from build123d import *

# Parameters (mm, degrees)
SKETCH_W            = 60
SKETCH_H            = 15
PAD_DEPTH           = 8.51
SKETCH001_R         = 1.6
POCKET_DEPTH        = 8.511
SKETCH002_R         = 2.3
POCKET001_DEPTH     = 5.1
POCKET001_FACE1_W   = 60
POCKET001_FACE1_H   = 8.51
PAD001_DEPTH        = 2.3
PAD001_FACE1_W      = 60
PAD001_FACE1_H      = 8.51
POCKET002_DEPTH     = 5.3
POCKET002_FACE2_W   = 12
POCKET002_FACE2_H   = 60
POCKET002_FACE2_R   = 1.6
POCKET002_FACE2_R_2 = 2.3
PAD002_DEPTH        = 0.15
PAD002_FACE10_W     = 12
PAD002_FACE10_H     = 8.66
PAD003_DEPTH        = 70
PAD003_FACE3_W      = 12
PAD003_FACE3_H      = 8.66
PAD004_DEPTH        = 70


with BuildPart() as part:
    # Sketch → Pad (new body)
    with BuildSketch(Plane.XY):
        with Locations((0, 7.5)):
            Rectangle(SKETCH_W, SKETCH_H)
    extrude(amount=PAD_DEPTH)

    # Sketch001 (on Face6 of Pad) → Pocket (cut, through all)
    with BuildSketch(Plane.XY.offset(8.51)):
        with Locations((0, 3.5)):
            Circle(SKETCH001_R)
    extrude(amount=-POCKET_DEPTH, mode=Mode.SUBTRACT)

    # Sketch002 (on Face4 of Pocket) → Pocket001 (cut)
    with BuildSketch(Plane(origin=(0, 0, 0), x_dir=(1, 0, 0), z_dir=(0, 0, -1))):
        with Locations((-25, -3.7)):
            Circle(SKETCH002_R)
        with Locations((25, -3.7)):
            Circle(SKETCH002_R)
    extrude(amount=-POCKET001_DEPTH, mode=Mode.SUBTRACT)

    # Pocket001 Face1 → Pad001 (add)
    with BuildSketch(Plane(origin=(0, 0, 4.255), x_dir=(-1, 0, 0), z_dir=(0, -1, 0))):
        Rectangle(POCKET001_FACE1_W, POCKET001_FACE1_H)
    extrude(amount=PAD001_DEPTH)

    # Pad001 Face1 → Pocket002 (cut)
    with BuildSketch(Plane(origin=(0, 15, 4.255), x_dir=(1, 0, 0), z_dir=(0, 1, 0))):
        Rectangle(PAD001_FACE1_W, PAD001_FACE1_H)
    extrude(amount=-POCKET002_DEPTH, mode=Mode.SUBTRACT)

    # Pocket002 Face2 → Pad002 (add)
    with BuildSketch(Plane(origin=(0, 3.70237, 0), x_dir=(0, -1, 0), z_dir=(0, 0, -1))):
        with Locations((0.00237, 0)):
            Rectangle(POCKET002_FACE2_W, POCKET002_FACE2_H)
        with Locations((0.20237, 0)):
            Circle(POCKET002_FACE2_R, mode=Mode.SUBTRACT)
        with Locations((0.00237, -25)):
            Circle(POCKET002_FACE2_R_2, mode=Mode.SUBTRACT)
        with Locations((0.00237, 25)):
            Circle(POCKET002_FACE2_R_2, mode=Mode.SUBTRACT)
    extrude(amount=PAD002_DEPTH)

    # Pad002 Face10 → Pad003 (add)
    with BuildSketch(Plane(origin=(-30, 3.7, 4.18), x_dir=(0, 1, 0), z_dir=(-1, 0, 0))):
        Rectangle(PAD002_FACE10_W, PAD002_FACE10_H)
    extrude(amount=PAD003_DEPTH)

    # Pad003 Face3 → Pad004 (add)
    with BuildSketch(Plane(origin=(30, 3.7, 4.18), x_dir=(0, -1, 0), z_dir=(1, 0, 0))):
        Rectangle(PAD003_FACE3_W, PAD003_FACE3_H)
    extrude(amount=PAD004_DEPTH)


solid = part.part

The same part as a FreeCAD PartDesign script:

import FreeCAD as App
import Part
import Sketcher
Q = App.Units.Quantity


def add_polygon(sketch, points):
    """Adds a closed chain of lines whose ends are joined by coincident constraints."""
    first, n = sketch.GeometryCount, len(points)
    for a, b in zip(points, points[1:] + points[:1]):
        sketch.addGeometry(Part.LineSegment(App.Vector(*a, 0), App.Vector(*b, 0)), False)
    for i in range(n):
        sketch.addConstraint(Sketcher.Constraint("Coincident", first + i, 2, first + (i + 1) % n, 1))

doc = App.newDocument("Part")
params = doc.addObject("Spreadsheet::Sheet", "Params")
for row, (alias, value) in enumerate([
    ("sketch1_width", "60 mm"),
    ("sketch1_height", "15 mm"),
    ("pad1_length", "8.51 mm"),
    ("sketch2_diameter", "3.2 mm"),
    ("sketch3_diameter", "4.6 mm"),
    ("pocket2_length", "5.1 mm"),
    ("sketch4_width", "60 mm"),
    ("sketch4_height", "8.51 mm"),
    ("pad2_length", "2.3 mm"),
    ("sketch5_width", "60 mm"),
    ("sketch5_height", "8.51 mm"),
    ("pocket3_length", "5.3 mm"),
    ("sketch6_diameter", "4.6 mm"),
    ("sketch6_diameter2", "3.2 mm"),
    ("sketch6_width", "60 mm"),
    ("sketch6_height", "12 mm"),
    ("pad3_length", "0.15 mm"),
    ("sketch7_width", "12 mm"),
    ("sketch7_height", "8.66 mm"),
    ("pad4_length", "70 mm"),
    ("sketch8_width", "12 mm"),
    ("sketch8_height", "8.66 mm"),
    ("pad5_length", "70 mm"),
], start=1):
    params.set(f"A{row}", alias)
    params.set(f"B{row}", "=" + value)
    params.setAlias(f"B{row}", alias)

body = doc.addObject("PartDesign::Body", "Body")

# Sketch on XY plane
sketch1 = doc.addObject("Sketcher::SketchObject", "Sketch")
body.addObject(sketch1)
sketch1.AttachmentSupport = (doc.XY_Plane, [""])
sketch1.MapMode = "FlatFace"
add_polygon(sketch1, [(-30, 15), (-30, 0), (30, 0), (30, 15)])  # lines 0-3
sketch1.addConstraint(Sketcher.Constraint("Vertical", 0))
sketch1.addConstraint(Sketcher.Constraint("Horizontal", 1))
sketch1.addConstraint(Sketcher.Constraint("Vertical", 2))
sketch1.addConstraint(Sketcher.Constraint("Horizontal", 3))
sketch1.addConstraint(Sketcher.Constraint("Symmetric", 0, 2, 1, 2, -1, 1))
sketch1.addConstraint(Sketcher.Constraint("DistanceX", 1, 1, 1, 2, Q("60 mm")))
sketch1.addConstraint(Sketcher.Constraint("DistanceY", 0, 2, 0, 1, Q("15 mm")))
sketch1.setExpression("Constraints[9]", "Params.sketch1_width")
sketch1.setExpression("Constraints[10]", "Params.sketch1_height")
pad1 = doc.addObject("PartDesign::Pad", "Pad")
body.addObject(pad1)
pad1.Profile = sketch1
pad1.setExpression("Length", "Params.pad1_length")

# Sketch on XY plane
sketch2 = doc.addObject("Sketcher::SketchObject", "Sketch001")
body.addObject(sketch2)
sketch2.AttachmentSupport = (doc.XY_Plane, [""])
sketch2.MapMode = "FlatFace"
sketch2.AttachmentOffset = App.Placement(App.Vector(0, 0, 8.51), App.Rotation())
sketch2.addGeometry(Part.Circle(App.Vector(0, 3.5, 0), App.Vector(0, 0, 1), 1.6), False)
sketch2.addConstraint(Sketcher.Constraint("PointOnObject", 0, 3, -2))
sketch2.addConstraint(Sketcher.Constraint("Diameter", 0, Q("3.2 mm")))
sketch2.addConstraint(Sketcher.Constraint("DistanceY", -1, 1, 0, 3, Q("3.5 mm")))
sketch2.setExpression("Constraints[1]", "Params.sketch2_diameter")
pocket1 = doc.addObject("PartDesign::Pocket", "Pocket")
body.addObject(pocket1)
pocket1.Profile = sketch2
pocket1.Type = "ThroughAll"

# Sketch on XY plane
sketch3 = doc.addObject("Sketcher::SketchObject", "Sketch002")
body.addObject(sketch3)
sketch3.AttachmentSupport = (doc.XY_Plane, [""])
sketch3.MapMode = "FlatFace"
sketch3.addGeometry(Part.Circle(App.Vector(-25, 3.7, 0), App.Vector(0, 0, 1), 2.3), False)
sketch3.addGeometry(Part.Circle(App.Vector(25, 3.7, 0), App.Vector(0, 0, 1), 2.3), False)
sketch3.addConstraint(Sketcher.Constraint("Equal", 0, 1))
sketch3.addConstraint(Sketcher.Constraint("Symmetric", 0, 3, 1, 3, -2))
sketch3.addConstraint(Sketcher.Constraint("Diameter", 0, Q("4.6 mm")))
sketch3.addConstraint(Sketcher.Constraint("DistanceX", 0, 3, -1, 1, Q("25 mm")))
sketch3.addConstraint(Sketcher.Constraint("DistanceY", -1, 1, 0, 3, Q("3.7 mm")))
sketch3.setExpression("Constraints[2]", "Params.sketch3_diameter")
pocket2 = doc.addObject("PartDesign::Pocket", "Pocket001")
body.addObject(pocket2)
pocket2.Profile = sketch3
pocket2.setExpression("Length", "Params.pocket2_length")
pocket2.Reversed = True

# Sketch on XZ plane
sketch4 = doc.addObject("Sketcher::SketchObject", "Sketch003")
body.addObject(sketch4)
sketch4.AttachmentSupport = (doc.XZ_Plane, [""])
sketch4.MapMode = "FlatFace"
add_polygon(sketch4, [(30, 0), (30, 8.51), (-30, 8.51), (-30, 0)])  # lines 0-3
sketch4.addConstraint(Sketcher.Constraint("Vertical", 0))
sketch4.addConstraint(Sketcher.Constraint("Horizontal", 1))
sketch4.addConstraint(Sketcher.Constraint("Vertical", 2))
sketch4.addConstraint(Sketcher.Constraint("Horizontal", 3))
sketch4.addConstraint(Sketcher.Constraint("Symmetric", 2, 2, 3, 2, -1, 1))
sketch4.addConstraint(Sketcher.Constraint("DistanceX", 1, 2, 1, 1, Q("60 mm")))
sketch4.addConstraint(Sketcher.Constraint("DistanceY", 0, 1, 0, 2, Q("8.51 mm")))
sketch4.setExpression("Constraints[9]", "Params.sketch4_width")
sketch4.setExpression("Constraints[10]", "Params.sketch4_height")
pad2 = doc.addObject("PartDesign::Pad", "Pad001")
body.addObject(pad2)
pad2.Profile = sketch4
pad2.setExpression("Length", "Params.pad2_length")

# Sketch on XZ plane
sketch5 = doc.addObject("Sketcher::SketchObject", "Sketch004")
body.addObject(sketch5)
sketch5.AttachmentSupport = (doc.XZ_Plane, [""])
sketch5.MapMode = "FlatFace"
sketch5.AttachmentOffset = App.Placement(App.Vector(0, 0, -15), App.Rotation())
add_polygon(sketch5, [(-30, 0), (-30, 8.51), (30, 8.51), (30, 0)])  # lines 0-3
sketch5.addConstraint(Sketcher.Constraint("Vertical", 0))
sketch5.addConstraint(Sketcher.Constraint("Horizontal", 1))
sketch5.addConstraint(Sketcher.Constraint("Vertical", 2))
sketch5.addConstraint(Sketcher.Constraint("Horizontal", 3))
sketch5.addConstraint(Sketcher.Constraint("Symmetric", 2, 2, 3, 2, -1, 1))
sketch5.addConstraint(Sketcher.Constraint("DistanceX", 1, 1, 1, 2, Q("60 mm")))
sketch5.addConstraint(Sketcher.Constraint("DistanceY", 0, 1, 0, 2, Q("8.51 mm")))
sketch5.setExpression("Constraints[9]", "Params.sketch5_width")
sketch5.setExpression("Constraints[10]", "Params.sketch5_height")
pocket3 = doc.addObject("PartDesign::Pocket", "Pocket002")
body.addObject(pocket3)
pocket3.Profile = sketch5
pocket3.setExpression("Length", "Params.pocket3_length")
pocket3.Reversed = True

# Sketch on XY plane
sketch6 = doc.addObject("Sketcher::SketchObject", "Sketch005")
body.addObject(sketch6)
sketch6.AttachmentSupport = (doc.XY_Plane, [""])
sketch6.MapMode = "FlatFace"
add_polygon(sketch6, [(-30, 9.7), (30, 9.7), (30, -2.3), (-30, -2.3)])  # lines 0-3
sketch6.addGeometry(Part.Circle(App.Vector(25, 3.7, 0), App.Vector(0, 0, 1), 2.3), False)  # 4
sketch6.addGeometry(Part.Circle(App.Vector(0, 3.5, 0), App.Vector(0, 0, 1), 1.6), False)  # 5
sketch6.addGeometry(Part.Circle(App.Vector(-25, 3.7, 0), App.Vector(0, 0, 1), 2.3), False)  # 6
sketch6.addConstraint(Sketcher.Constraint("Horizontal", 0))
sketch6.addConstraint(Sketcher.Constraint("Vertical", 1))
sketch6.addConstraint(Sketcher.Constraint("Horizontal", 2))
sketch6.addConstraint(Sketcher.Constraint("Vertical", 3))
sketch6.addConstraint(Sketcher.Constraint("Equal", 4, 6))
sketch6.addConstraint(Sketcher.Constraint("Symmetric", 4, 3, 6, 3, -2))
sketch6.addConstraint(Sketcher.Constraint("PointOnObject", 5, 3, -2))
sketch6.addConstraint(Sketcher.Constraint("Diameter", 4, Q("4.6 mm")))
sketch6.addConstraint(Sketcher.Constraint("Diameter", 5, Q("3.2 mm")))
sketch6.addConstraint(Sketcher.Constraint("DistanceX", 0, 1, 0, 2, Q("60 mm")))
sketch6.addConstraint(Sketcher.Constraint("DistanceY", 1, 2, 1, 1, Q("12 mm")))
sketch6.addConstraint(Sketcher.Constraint("DistanceX", -1, 1, 4, 3, Q("25 mm")))
sketch6.addConstraint(Sketcher.Constraint("DistanceX", -1, 1, 0, 2, Q("30 mm")))
sketch6.addConstraint(Sketcher.Constraint("DistanceY", 4, 3, 0, 2, Q("6 mm")))
sketch6.addConstraint(Sketcher.Constraint("DistanceY", -1, 1, 4, 3, Q("3.7 mm")))
sketch6.addConstraint(Sketcher.Constraint("DistanceY", -1, 1, 5, 3, Q("3.5 mm")))
sketch6.setExpression("Constraints[11]", "Params.sketch6_diameter")
sketch6.setExpression("Constraints[12]", "Params.sketch6_diameter2")
sketch6.setExpression("Constraints[13]", "Params.sketch6_width")
sketch6.setExpression("Constraints[14]", "Params.sketch6_height")
pad3 = doc.addObject("PartDesign::Pad", "Pad002")
body.addObject(pad3)
pad3.Profile = sketch6
pad3.setExpression("Length", "Params.pad3_length")
pad3.Reversed = True

# Sketch on YZ plane
sketch7 = doc.addObject("Sketcher::SketchObject", "Sketch006")
body.addObject(sketch7)
sketch7.AttachmentSupport = (doc.YZ_Plane, [""])
sketch7.MapMode = "FlatFace"
sketch7.AttachmentOffset = App.Placement(App.Vector(0, 0, -30), App.Rotation())
add_polygon(sketch7, [(-2.3, -0.15), (-2.3, 8.51), (9.7, 8.51), (9.7, -0.15)])  # lines 0-3
sketch7.addConstraint(Sketcher.Constraint("Vertical", 0))
sketch7.addConstraint(Sketcher.Constraint("Horizontal", 1))
sketch7.addConstraint(Sketcher.Constraint("Vertical", 2))
sketch7.addConstraint(Sketcher.Constraint("Horizontal", 3))
sketch7.addConstraint(Sketcher.Constraint("DistanceX", 1, 1, 1, 2, Q("12 mm")))
sketch7.addConstraint(Sketcher.Constraint("DistanceY", 0, 1, 0, 2, Q("8.66 mm")))
sketch7.addConstraint(Sketcher.Constraint("DistanceX", 0, 2, -1, 1, Q("2.3 mm")))
sketch7.addConstraint(Sketcher.Constraint("DistanceY", -1, 1, 0, 2, Q("8.51 mm")))
sketch7.setExpression("Constraints[8]", "Params.sketch7_width")
sketch7.setExpression("Constraints[9]", "Params.sketch7_height")
pad4 = doc.addObject("PartDesign::Pad", "Pad003")
body.addObject(pad4)
pad4.Profile = sketch7
pad4.setExpression("Length", "Params.pad4_length")
pad4.Reversed = True

# Sketch on YZ plane
sketch8 = doc.addObject("Sketcher::SketchObject", "Sketch007")
body.addObject(sketch8)
sketch8.AttachmentSupport = (doc.YZ_Plane, [""])
sketch8.MapMode = "FlatFace"
sketch8.AttachmentOffset = App.Placement(App.Vector(0, 0, 30), App.Rotation())
add_polygon(sketch8, [(9.7, -0.15), (9.7, 8.51), (-2.3, 8.51), (-2.3, -0.15)])  # lines 0-3
sketch8.addConstraint(Sketcher.Constraint("Vertical", 0))
sketch8.addConstraint(Sketcher.Constraint("Horizontal", 1))
sketch8.addConstraint(Sketcher.Constraint("Vertical", 2))
sketch8.addConstraint(Sketcher.Constraint("Horizontal", 3))
sketch8.addConstraint(Sketcher.Constraint("DistanceX", 1, 2, 1, 1, Q("12 mm")))
sketch8.addConstraint(Sketcher.Constraint("DistanceY", 0, 1, 0, 2, Q("8.66 mm")))
sketch8.addConstraint(Sketcher.Constraint("DistanceX", -1, 1, 0, 2, Q("9.7 mm")))
sketch8.addConstraint(Sketcher.Constraint("DistanceY", -1, 1, 0, 2, Q("8.51 mm")))
sketch8.setExpression("Constraints[8]", "Params.sketch8_width")
sketch8.setExpression("Constraints[9]", "Params.sketch8_height")
pad5 = doc.addObject("PartDesign::Pad", "Pad004")
body.addObject(pad5)
pad5.Profile = sketch8
pad5.setExpression("Length", "Params.pad5_length")

doc.recompute()
